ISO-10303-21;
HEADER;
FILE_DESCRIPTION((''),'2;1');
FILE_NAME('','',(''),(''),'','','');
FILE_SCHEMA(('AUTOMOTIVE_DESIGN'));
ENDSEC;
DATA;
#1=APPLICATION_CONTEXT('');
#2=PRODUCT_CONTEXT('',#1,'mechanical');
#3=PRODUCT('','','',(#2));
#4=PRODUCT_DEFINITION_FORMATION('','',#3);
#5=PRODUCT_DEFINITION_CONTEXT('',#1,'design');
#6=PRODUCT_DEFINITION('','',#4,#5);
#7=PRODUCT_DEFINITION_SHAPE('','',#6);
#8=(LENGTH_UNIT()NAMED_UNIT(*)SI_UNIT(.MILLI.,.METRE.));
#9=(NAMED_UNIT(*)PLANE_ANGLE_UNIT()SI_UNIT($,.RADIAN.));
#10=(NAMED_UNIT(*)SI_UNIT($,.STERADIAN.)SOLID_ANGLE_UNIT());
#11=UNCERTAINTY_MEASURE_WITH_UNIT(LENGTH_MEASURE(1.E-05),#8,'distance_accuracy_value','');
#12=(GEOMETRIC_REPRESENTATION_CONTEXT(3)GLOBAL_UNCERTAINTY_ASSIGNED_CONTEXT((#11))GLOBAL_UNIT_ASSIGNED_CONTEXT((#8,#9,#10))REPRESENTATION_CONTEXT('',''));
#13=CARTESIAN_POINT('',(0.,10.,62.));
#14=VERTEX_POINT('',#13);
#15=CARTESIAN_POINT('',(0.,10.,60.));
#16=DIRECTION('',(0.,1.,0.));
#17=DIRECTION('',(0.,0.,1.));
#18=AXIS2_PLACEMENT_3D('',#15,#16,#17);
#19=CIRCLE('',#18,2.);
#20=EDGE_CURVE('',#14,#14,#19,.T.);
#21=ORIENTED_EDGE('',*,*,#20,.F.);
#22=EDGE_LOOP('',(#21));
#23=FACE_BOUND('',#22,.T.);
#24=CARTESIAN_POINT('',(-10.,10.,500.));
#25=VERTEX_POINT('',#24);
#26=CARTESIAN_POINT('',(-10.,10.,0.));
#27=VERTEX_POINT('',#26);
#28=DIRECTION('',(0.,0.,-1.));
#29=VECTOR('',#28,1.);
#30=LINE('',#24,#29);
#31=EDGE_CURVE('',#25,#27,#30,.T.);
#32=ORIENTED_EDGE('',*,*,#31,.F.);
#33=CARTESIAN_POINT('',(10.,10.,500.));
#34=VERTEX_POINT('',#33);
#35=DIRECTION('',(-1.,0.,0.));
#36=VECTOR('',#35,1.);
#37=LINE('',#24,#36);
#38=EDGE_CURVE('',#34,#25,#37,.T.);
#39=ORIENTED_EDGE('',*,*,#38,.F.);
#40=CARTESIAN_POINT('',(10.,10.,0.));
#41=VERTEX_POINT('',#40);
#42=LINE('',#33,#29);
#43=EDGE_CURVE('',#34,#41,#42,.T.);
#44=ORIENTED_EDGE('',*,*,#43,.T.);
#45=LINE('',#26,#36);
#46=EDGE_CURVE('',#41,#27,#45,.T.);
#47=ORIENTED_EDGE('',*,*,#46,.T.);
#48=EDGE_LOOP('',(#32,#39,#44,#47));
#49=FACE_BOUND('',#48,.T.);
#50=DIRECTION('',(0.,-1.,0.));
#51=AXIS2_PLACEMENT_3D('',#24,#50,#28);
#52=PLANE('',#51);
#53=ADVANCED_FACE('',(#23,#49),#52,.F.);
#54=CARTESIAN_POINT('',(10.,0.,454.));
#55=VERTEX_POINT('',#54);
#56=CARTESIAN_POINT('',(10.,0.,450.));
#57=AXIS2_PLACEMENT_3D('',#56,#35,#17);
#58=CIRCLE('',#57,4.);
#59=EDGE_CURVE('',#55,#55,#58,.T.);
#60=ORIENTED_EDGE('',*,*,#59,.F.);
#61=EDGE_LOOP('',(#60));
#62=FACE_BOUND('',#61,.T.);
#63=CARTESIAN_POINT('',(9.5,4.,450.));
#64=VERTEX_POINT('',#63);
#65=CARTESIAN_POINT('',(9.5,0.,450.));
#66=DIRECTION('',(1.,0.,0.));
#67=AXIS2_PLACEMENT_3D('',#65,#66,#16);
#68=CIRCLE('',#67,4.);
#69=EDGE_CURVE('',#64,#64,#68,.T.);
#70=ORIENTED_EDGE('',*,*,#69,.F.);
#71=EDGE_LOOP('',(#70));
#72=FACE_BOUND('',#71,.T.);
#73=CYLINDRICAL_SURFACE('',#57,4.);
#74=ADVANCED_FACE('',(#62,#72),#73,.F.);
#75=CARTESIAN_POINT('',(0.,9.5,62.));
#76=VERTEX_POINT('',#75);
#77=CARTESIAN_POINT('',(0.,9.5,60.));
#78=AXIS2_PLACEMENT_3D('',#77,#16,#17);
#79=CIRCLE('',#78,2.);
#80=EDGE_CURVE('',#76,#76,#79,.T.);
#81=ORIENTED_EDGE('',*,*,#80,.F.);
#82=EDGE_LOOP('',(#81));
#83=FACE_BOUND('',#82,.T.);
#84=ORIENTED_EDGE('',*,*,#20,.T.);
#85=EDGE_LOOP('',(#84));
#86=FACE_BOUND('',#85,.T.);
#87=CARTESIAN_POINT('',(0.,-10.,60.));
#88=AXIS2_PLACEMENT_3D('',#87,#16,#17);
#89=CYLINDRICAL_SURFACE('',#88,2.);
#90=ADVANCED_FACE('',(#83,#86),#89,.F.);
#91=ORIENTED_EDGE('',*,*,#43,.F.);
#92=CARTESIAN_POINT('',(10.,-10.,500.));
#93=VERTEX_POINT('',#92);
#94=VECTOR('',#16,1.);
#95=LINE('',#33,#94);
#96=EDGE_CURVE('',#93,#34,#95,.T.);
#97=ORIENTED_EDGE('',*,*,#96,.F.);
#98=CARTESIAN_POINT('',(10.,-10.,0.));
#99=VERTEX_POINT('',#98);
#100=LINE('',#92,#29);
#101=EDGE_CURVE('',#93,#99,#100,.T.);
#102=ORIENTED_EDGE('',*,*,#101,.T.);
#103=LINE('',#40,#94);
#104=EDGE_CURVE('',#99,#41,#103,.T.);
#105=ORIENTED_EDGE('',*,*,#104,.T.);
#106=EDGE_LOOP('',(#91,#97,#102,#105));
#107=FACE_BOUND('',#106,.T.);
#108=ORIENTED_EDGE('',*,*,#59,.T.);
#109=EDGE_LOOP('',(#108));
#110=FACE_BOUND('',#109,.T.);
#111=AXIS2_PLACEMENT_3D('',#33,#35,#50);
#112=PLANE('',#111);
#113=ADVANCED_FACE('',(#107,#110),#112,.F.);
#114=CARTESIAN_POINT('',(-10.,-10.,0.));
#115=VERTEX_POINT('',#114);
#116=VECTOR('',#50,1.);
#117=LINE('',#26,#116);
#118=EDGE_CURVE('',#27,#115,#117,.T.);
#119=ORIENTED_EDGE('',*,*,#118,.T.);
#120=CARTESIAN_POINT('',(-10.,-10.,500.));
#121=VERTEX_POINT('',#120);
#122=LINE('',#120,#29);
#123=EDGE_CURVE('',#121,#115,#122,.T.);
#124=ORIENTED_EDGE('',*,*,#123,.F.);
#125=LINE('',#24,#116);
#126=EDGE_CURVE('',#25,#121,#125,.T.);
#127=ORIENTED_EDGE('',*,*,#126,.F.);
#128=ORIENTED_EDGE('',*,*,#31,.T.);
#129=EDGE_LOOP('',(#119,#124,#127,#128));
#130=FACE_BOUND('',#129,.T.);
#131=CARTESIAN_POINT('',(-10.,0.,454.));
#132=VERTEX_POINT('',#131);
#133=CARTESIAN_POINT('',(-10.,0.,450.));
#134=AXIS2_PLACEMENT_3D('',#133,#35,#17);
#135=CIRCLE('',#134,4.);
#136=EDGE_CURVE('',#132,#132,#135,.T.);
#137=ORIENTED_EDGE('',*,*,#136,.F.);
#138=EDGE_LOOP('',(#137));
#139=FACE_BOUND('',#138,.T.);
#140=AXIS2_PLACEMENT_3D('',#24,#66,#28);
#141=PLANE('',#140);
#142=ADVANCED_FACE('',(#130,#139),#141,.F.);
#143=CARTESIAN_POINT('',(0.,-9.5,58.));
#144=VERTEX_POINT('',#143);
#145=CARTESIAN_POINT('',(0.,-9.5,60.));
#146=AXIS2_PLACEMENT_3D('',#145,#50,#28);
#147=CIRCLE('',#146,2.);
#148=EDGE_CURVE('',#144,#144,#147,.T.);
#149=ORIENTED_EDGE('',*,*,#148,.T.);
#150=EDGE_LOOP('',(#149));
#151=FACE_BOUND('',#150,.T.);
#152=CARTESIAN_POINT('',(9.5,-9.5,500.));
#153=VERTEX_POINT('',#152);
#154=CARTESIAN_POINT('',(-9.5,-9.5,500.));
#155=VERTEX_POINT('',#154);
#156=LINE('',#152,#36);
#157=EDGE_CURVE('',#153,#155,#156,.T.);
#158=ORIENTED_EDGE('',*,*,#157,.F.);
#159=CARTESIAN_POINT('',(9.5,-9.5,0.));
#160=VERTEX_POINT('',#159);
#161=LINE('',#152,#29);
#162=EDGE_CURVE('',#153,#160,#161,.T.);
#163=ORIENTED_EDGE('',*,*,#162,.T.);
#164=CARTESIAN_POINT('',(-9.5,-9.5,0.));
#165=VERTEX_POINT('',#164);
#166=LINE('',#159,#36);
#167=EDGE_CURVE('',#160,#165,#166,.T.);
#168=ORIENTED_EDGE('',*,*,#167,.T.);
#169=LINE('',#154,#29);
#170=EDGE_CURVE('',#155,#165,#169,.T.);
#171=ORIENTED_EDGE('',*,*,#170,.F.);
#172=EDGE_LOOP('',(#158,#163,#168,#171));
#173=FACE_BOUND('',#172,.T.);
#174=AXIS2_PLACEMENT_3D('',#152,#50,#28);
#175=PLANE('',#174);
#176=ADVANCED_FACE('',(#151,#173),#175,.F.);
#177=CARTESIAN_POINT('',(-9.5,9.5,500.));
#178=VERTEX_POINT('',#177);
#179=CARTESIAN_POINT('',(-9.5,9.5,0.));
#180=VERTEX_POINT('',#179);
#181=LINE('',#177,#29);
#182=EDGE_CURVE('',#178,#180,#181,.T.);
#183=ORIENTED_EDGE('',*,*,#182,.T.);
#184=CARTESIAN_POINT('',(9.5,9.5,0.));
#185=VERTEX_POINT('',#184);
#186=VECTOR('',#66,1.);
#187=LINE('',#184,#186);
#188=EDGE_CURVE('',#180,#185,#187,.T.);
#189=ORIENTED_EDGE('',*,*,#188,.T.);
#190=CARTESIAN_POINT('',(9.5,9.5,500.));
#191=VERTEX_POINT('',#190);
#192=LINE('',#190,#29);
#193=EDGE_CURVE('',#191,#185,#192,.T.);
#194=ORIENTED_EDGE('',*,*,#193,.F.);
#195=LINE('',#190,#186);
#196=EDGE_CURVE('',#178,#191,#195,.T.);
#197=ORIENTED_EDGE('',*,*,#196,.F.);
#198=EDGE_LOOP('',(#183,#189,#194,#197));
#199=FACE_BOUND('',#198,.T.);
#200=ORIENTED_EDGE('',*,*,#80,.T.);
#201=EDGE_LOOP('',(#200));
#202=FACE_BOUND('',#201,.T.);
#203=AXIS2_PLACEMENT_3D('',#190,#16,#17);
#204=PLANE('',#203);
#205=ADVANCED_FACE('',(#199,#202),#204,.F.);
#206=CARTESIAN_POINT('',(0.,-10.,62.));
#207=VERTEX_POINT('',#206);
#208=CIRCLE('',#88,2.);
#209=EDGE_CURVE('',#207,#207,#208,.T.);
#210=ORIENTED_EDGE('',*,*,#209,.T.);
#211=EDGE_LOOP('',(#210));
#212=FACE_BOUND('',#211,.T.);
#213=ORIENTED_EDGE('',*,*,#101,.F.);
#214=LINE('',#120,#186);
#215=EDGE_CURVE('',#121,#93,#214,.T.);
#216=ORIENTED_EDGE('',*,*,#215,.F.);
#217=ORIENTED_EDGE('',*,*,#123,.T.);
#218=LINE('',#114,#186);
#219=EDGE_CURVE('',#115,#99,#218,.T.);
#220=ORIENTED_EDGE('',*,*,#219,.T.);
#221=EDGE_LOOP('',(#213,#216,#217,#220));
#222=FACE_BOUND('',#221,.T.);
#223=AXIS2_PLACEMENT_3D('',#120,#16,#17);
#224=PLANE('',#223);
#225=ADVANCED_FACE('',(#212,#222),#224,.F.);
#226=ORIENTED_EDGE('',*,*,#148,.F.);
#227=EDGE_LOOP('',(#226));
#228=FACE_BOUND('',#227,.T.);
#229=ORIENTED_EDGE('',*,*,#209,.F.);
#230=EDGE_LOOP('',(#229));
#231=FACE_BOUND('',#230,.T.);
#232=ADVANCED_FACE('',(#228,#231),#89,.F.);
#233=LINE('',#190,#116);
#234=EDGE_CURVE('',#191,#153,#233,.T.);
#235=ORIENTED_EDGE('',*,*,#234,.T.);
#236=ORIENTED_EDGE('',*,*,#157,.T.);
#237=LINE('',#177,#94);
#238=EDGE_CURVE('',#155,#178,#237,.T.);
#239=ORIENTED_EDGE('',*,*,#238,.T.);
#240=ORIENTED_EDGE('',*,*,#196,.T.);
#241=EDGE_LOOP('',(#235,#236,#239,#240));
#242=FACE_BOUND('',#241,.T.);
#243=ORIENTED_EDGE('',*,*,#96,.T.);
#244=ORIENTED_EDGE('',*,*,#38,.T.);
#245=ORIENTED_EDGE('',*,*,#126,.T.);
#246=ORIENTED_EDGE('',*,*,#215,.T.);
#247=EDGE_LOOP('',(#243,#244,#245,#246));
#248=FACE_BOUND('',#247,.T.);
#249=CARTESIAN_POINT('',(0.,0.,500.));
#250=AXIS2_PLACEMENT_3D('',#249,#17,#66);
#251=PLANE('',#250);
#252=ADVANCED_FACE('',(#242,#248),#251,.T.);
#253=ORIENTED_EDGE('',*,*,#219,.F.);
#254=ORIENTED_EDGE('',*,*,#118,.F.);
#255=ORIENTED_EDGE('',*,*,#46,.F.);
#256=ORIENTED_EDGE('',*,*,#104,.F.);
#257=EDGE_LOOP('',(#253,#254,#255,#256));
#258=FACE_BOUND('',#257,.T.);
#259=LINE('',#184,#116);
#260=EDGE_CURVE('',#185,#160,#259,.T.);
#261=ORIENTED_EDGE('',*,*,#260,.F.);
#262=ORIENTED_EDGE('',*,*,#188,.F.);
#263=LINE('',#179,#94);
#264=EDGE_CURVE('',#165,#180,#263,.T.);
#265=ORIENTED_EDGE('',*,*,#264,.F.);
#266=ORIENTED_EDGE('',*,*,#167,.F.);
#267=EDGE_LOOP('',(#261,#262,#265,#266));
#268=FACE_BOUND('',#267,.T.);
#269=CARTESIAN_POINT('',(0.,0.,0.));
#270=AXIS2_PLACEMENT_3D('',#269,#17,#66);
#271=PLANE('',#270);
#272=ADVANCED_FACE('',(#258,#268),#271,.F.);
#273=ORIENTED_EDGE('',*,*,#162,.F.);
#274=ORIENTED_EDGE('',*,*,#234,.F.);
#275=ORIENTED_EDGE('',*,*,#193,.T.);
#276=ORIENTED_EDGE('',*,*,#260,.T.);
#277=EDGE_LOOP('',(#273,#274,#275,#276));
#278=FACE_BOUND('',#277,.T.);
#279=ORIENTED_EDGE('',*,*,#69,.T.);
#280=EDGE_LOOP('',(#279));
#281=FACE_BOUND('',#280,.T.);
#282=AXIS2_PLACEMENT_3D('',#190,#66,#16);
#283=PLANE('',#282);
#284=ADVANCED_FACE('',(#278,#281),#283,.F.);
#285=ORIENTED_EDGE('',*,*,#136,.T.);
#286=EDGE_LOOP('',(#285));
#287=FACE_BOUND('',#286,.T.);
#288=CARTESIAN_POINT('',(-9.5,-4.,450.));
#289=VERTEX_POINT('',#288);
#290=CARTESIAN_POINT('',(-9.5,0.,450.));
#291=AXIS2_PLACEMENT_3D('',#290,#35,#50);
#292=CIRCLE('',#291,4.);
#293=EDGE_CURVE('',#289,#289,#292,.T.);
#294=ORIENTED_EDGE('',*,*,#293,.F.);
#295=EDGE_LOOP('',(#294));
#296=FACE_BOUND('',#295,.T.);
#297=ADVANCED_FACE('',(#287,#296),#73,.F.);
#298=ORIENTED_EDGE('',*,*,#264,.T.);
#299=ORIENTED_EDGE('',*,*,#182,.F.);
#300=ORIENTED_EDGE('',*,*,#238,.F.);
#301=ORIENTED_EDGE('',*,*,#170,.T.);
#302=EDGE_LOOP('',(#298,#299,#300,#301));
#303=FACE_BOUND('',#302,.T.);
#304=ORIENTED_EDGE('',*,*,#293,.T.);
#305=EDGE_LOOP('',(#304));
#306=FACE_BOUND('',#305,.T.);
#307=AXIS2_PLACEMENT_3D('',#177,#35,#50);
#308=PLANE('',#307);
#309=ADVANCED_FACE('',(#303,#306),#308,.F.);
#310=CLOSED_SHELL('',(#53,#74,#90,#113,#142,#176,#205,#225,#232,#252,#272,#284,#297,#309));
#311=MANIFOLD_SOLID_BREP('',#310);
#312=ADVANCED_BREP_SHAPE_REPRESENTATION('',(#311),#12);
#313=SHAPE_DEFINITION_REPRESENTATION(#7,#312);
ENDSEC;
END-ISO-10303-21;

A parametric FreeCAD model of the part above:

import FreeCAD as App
import Part
import Sketcher
from FreeCAD import Vector
Q = App.Units.Quantity


def add_polygon(sketch, points):
    """Adds a closed chain of lines whose ends are joined by coincident constraints."""
    first, n = sketch.GeometryCount, len(points)
    for a, b in zip(points, points[1:] + points[:1]):
        sketch.addGeometry(Part.LineSegment(App.Vector(*a, 0), App.Vector(*b, 0)), False)
    for i in range(n):
        sketch.addConstraint(Sketcher.Constraint("Coincident", first + i, 2, first + (i + 1) % n, 1))

doc = App.newDocument("Part")
body = doc.addObject("PartDesign::Body", "Body")

# Sketch on XY plane
sketch1 = body.newObject("Sketcher::SketchObject", "Sketch")
sketch1.AttachmentSupport = (doc.getObject("XY_Plane"), [""])
sketch1.MapMode = "FlatFace"
add_polygon(sketch1, [(-10, 10), (-10, -10), (10, -10), (10, 10)])  # lines 0-3
sketch1.addConstraint([
    Sketcher.Constraint("Vertical", 0),
    Sketcher.Constraint("Horizontal", 1),
    Sketcher.Constraint("Vertical", 2),
    Sketcher.Constraint("Horizontal", 3),
    Sketcher.Constraint("Symmetric", 0, 2, 2, 2, -1, 1),
    Sketcher.Constraint("Equal", 3, 0),
    Sketcher.Constraint("DistanceX", 1, 1, 1, 2, Q("20 mm")),
])
pad1 = body.newObject("PartDesign::Pad", "Pad")
pad1.Profile = sketch1
pad1.Length = 500

# Sketch on XY plane
sketch2 = body.newObject("Sketcher::SketchObject", "Sketch001")
sketch2.AttachmentSupport = (doc.getObject("XY_Plane"), [""])
sketch2.MapMode = "FlatFace"
add_polygon(sketch2, [(10, 10), (10, -10), (-10, -10), (-10, 10)])  # lines 0-3
sketch2.addConstraint([
    Sketcher.Constraint("Vertical", 0),
    Sketcher.Constraint("Horizontal", 1),
    Sketcher.Constraint("Vertical", 2),
    Sketcher.Constraint("Horizontal", 3),
    Sketcher.Constraint("Symmetric", 0, 2, 2, 2, -1, 1),
    Sketcher.Constraint("Equal", 3, 0),
    Sketcher.Constraint("DistanceX", 1, 2, 1, 1, Q("19 mm")),
])
pocket1 = body.newObject("PartDesign::Pocket", "Pocket")
pocket1.Profile = sketch2
pocket1.Type = "ThroughAll"
pocket1.Reversed = True

# Sketch on XZ plane
sketch3 = body.newObject("Sketcher::SketchObject", "Sketch002")
sketch3.AttachmentSupport = (doc.getObject("XZ_Plane"), [""])
sketch3.MapMode = "FlatFace"
sketch3.AttachmentOffset = App.Placement(Vector(0, 0, -10), App.Rotation())
sketch3.addGeometry(Part.Circle(Vector(0, 60, 0), Vector(0, 0, 1), 2), False)
sketch3.addConstraint([
    Sketcher.Constraint("PointOnObject", 0, 3, -2),
    Sketcher.Constraint("Diameter", 0, Q("4 mm")),
    Sketcher.Constraint("DistanceY", -1, 1, 0, 3, Q("60 mm")),
])
pocket2 = body.newObject("PartDesign::Pocket", "Pocket001")
pocket2.Profile = sketch3
pocket2.Length = 20
pocket2.Reversed = True

# Sketch on YZ plane
sketch4 = body.newObject("Sketcher::SketchObject", "Sketch003")
sketch4.AttachmentSupport = (doc.getObject("YZ_Plane"), [""])
sketch4.MapMode = "FlatFace"
sketch4.AttachmentOffset = App.Placement(Vector(0, 0, -10), App.Rotation())
sketch4.addGeometry(Part.Circle(Vector(0, 450, 0), Vector(0, 0, 1), 4), False)
sketch4.addConstraint([
    Sketcher.Constraint("PointOnObject", 0, 3, -2),
    Sketcher.Constraint("Diameter", 0, Q("8 mm")),
    Sketcher.Constraint("DistanceY", -1, 1, 0, 3, Q("450 mm")),
])
pocket3 = body.newObject("PartDesign::Pocket", "Pocket002")
pocket3.Profile = sketch4
pocket3.Length = 20
pocket3.Reversed = True

doc.recompute()
